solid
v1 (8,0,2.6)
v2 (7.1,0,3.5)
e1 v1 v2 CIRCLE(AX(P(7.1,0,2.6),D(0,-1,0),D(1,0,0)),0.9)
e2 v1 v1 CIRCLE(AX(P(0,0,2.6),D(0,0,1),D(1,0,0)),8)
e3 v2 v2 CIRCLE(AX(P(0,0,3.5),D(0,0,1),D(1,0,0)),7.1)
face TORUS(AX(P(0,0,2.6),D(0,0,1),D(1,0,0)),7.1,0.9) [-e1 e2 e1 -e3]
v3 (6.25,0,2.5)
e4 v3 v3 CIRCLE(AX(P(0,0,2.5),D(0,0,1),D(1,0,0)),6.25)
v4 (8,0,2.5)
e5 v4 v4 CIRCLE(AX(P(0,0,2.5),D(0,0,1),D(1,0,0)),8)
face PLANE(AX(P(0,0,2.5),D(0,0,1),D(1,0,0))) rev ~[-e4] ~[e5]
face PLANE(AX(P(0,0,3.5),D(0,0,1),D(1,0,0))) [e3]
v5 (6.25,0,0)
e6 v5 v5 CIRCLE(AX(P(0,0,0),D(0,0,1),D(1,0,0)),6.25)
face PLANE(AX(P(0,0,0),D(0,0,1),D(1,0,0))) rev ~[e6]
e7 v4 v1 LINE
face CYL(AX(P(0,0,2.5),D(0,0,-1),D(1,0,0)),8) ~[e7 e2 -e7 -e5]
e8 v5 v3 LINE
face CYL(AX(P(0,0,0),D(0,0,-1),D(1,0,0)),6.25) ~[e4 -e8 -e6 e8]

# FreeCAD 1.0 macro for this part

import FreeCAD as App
import Part
import Sketcher
from FreeCAD import Vector


def edges_at(feature, points):
    """Names of the edges that pass closest to the given points."""
    edges = feature.Shape.Edges
    near = lambda p: min(range(len(edges)), key=lambda i: edges[i].distToShape(Part.Vertex(*p))[0])
    return sorted({f"Edge{near(p) + 1}" for p in points})

doc = App.newDocument("Part")
body = doc.addObject("PartDesign::Body", "Body")

sketch1 = body.newObject("Sketcher::SketchObject", "Sketch")
sketch1.AttachmentSupport = (doc.getObject("XY_Plane"), [""])
sketch1.MapMode = "FlatFace"
sketch1.addGeometry(Part.Circle(Vector(0, 0, 0), Vector(0, 0, 1), 6), False)
sketch1.addConstraint([
    Sketcher.Constraint("Coincident", 0, 3, -1, 1),
    Sketcher.Constraint("Diameter", 0, 12.5),
])
pad1 = body.newObject("PartDesign::Pad", "Pad")
pad1.Profile = sketch1
pad1.Length = 2.5
body2 = doc.addObject("PartDesign::Body", "Body001")

sketch2 = body2.newObject("Sketcher::SketchObject", "Sketch001")
sketch2.AttachmentSupport = (doc.getObject("XY_Plane001"), [""])
sketch2.MapMode = "FlatFace"
sketch2.AttachmentOffset = App.Placement(Vector(0, 0, 2.5), App.Rotation())
sketch2.addGeometry(Part.Circle(Vector(0, 0, 0), Vector(0, 0, 1), 8), False)
sketch2.addConstraint([
    Sketcher.Constraint("Coincident", 0, 3, -1, 1),
    Sketcher.Constraint("Diameter", 0, 16.0),
])
pad2 = body2.newObject("PartDesign::Pad", "Pad001")
pad2.Profile = sketch2
pad2.Length = 1
doc.recompute()

boolean = body2.newObject("PartDesign::Boolean", "Boolean")
boolean.Type = "Fuse"
boolean.addObjects([body])
doc.recompute()

fillet = body2.newObject("PartDesign::Fillet", "Fillet")
fillet.Base = (boolean, edges_at(boolean, [(-8, 0, 3.5)]))
fillet.Radius = 0.9

doc.recompute()
